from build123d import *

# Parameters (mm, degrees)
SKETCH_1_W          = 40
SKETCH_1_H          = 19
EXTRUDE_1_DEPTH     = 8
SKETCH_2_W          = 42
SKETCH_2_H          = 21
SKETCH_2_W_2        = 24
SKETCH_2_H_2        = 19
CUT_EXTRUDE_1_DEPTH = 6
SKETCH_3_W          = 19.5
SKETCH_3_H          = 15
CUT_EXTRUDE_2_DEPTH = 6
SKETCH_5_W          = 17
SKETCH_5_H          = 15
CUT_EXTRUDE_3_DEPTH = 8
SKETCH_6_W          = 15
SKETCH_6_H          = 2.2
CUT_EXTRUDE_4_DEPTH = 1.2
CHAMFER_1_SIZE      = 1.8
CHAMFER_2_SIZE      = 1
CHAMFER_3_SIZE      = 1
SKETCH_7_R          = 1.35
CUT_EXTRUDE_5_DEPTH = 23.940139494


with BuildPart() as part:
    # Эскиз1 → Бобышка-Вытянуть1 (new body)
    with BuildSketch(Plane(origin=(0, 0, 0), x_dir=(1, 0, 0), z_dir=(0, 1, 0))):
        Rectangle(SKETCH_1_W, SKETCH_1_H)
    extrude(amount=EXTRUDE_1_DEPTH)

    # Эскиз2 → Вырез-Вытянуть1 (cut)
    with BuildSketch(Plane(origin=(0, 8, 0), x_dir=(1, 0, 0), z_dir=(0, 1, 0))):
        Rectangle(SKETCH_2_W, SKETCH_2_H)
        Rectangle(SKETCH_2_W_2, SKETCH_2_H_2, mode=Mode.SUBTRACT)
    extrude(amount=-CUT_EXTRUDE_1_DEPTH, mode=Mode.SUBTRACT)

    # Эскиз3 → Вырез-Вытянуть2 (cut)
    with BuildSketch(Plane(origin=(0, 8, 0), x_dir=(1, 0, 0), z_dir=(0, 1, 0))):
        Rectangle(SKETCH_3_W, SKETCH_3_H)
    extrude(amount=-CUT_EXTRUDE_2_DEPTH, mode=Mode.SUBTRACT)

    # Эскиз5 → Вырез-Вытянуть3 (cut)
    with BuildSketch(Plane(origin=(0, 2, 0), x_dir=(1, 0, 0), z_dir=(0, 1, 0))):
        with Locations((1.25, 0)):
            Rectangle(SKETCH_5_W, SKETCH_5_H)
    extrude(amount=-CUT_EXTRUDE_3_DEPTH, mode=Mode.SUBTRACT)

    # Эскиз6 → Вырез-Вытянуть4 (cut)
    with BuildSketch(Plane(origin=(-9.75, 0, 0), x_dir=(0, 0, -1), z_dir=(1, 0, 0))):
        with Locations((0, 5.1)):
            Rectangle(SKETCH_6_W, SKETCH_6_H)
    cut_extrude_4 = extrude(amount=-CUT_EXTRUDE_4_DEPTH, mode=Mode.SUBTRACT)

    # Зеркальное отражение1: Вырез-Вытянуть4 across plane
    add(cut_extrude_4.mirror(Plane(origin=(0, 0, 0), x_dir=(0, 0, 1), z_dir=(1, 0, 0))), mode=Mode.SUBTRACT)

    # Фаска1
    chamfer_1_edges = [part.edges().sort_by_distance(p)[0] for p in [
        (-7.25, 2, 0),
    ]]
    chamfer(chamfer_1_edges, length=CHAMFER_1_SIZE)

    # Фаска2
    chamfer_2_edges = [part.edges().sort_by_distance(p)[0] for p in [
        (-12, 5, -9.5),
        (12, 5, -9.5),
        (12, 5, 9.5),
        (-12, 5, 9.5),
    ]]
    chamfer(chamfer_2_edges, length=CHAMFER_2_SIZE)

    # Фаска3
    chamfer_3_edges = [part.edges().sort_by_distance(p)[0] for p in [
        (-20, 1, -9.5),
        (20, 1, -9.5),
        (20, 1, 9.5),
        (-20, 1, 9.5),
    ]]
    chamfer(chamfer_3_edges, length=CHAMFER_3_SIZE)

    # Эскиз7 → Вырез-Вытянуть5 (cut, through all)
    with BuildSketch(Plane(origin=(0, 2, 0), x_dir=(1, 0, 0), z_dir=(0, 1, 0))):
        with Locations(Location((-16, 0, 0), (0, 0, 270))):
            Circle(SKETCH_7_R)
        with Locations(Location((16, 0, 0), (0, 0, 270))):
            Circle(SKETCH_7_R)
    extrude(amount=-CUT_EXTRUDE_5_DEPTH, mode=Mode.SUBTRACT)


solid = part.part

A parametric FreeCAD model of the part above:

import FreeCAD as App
import Part
import Sketcher
Q = App.Units.Quantity


def edges_at(feature, points):
    """Names of the edges that pass closest to the given points."""
    edges = feature.Shape.Edges
    near = lambda p: min(range(len(edges)), key=lambda i: edges[i].distToShape(Part.Vertex(*p))[0])
    return sorted({f"Edge{near(p) + 1}" for p in points})


def add_polygon(sketch, points):
    """Adds a closed chain of lines whose ends are joined by coincident constraints."""
    first, n = sketch.GeometryCount, len(points)
    for a, b in zip(points, points[1:] + points[:1]):
        sketch.addGeometry(Part.LineSegment(App.Vector(*a, 0), App.Vector(*b, 0)), False)
    for i in range(n):
        sketch.addConstraint(Sketcher.Constraint("Coincident", first + i, 2, first + (i + 1) % n, 1))

doc = App.newDocument("Part")
body = doc.addObject("PartDesign::Body", "Body")

# Sketch on XZ plane
sketch1 = body.newObject("Sketcher::SketchObject", "Sketch")
sketch1.AttachmentSupport = (doc.getObject("XZ_Plane"), [""])
sketch1.MapMode = "FlatFace"
add_polygon(sketch1, [(-20, -10), (-20, 10), (20, 10), (20, -10)])  # lines 0-3
sketch1.addConstraint([
    Sketcher.Constraint("Vertical", 0),
    Sketcher.Constraint("Horizontal", 1),
    Sketcher.Constraint("Vertical", 2),
    Sketcher.Constraint("Horizontal", 3),
    Sketcher.Constraint("Symmetric", 0, 2, 2, 2, -1, 1),
    Sketcher.Constraint("DistanceX", 1, 1, 1, 2, Q("40 mm")),
    Sketcher.Constraint("DistanceY", 0, 1, 0, 2, Q("19 mm")),
])
pad1 = body.newObject("PartDesign::Pad", "Pad")
pad1.Profile = sketch1
pad1.Length = 8
pad1.Reversed = True

# Sketch on XZ plane
sketch2 = body.newObject("Sketcher::SketchObject", "Sketch001")
sketch2.AttachmentSupport = (doc.getObject("XZ_Plane"), [""])
sketch2.MapMode = "FlatFace"
sketch2.AttachmentOffset = App.Placement(App.Vector(0, 0, -8), App.Rotation())
add_polygon(sketch2, [(-21, -10), (-21, 10), (21, 10), (21, -10)])  # lines 0-3
add_polygon(sketch2, [(12, 10), (-12, 10), (-12, -10), (12, -10)])  # lines 4-7
sketch2.addConstraint([
    Sketcher.Constraint("Vertical", 0),
    Sketcher.Constraint("Horizontal", 1),
    Sketcher.Constraint("Vertical", 2),
    Sketcher.Constraint("Horizontal", 3),
    Sketcher.Constraint("Horizontal", 4),
    Sketcher.Constraint("Vertical", 5),
    Sketcher.Constraint("Horizontal", 6),
    Sketcher.Constraint("Vertical", 7),
    Sketcher.Constraint("Symmetric", 0, 2, 2, 2, -1, 1),
    Sketcher.Constraint("Symmetric", 4, 2, 6, 2, -1, 1),
    Sketcher.Constraint("DistanceX", 1, 1, 1, 2, Q("42 mm")),
    Sketcher.Constraint("DistanceX", 4, 2, 4, 1, Q("24 mm")),
    Sketcher.Constraint("DistanceY", 0, 1, 0, 2, Q("21 mm")),
    Sketcher.Constraint("DistanceY", 5, 2, 5, 1, Q("19 mm")),
])
pocket1 = body.newObject("PartDesign::Pocket", "Pocket")
pocket1.Profile = sketch2
pocket1.Length = 6
pocket1.Reversed = True

# Sketch on XZ plane
sketch3 = body.newObject("Sketcher::SketchObject", "Sketch002")
sketch3.AttachmentSupport = (doc.getObject("XZ_Plane"), [""])
sketch3.MapMode = "FlatFace"
sketch3.AttachmentOffset = App.Placement(App.Vector(0, 0, -8), App.Rotation())
add_polygon(sketch3, [(-10, -8), (-10, 8), (10, 8), (10, -8)])  # lines 0-3
sketch3.addConstraint([
    Sketcher.Constraint("Vertical", 0),
    Sketcher.Constraint("Horizontal", 1),
    Sketcher.Constraint("Vertical", 2),
    Sketcher.Constraint("Horizontal", 3),
    Sketcher.Constraint("Symmetric", 0, 2, 2, 2, -1, 1),
    Sketcher.Constraint("DistanceY", 0, 1, 0, 2, Q("15 mm")),
    Sketcher.Constraint("DistanceX", 1, 1, 1, 2, Q("19.5 mm")),
])
pocket2 = body.newObject("PartDesign::Pocket", "Pocket001")
pocket2.Profile = sketch3
pocket2.Length = 6
pocket2.Reversed = True

# Sketch on XZ plane
sketch4 = body.newObject("Sketcher::SketchObject", "Sketch003")
sketch4.AttachmentSupport = (doc.getObject("XZ_Plane"), [""])
sketch4.MapMode = "FlatFace"
sketch4.AttachmentOffset = App.Placement(App.Vector(0, 0, -2), App.Rotation())
add_polygon(sketch4, [(-7, -8), (-7, 8), (10, 8), (10, -8)])  # lines 0-3
sketch4.addConstraint([
    Sketcher.Constraint("Vertical", 0),
    Sketcher.Constraint("Horizontal", 1),
    Sketcher.Constraint("Vertical", 2),
    Sketcher.Constraint("Horizontal", 3),
    Sketcher.Constraint("DistanceX", 1, 1, 1, 2, Q("17 mm")),
    Sketcher.Constraint("DistanceY", 0, 1, 0, 2, Q("15 mm")),
    Sketcher.Constraint("DistanceY", -1, 1, 0, 2, Q("7.5 mm")),
    Sketcher.Constraint("DistanceX", 0, 2, -1, 1, Q("7.25 mm")),
])
pocket3 = body.newObject("PartDesign::Pocket", "Pocket002")
pocket3.Profile = sketch4
pocket3.Length = 8
pocket3.Reversed = True

# Sketch on YZ plane
sketch5 = body.newObject("Sketcher::SketchObject", "Sketch004")
sketch5.AttachmentSupport = (doc.getObject("YZ_Plane"), [""])
sketch5.MapMode = "FlatFace"
sketch5.AttachmentOffset = App.Placement(App.Vector(0, 0, -9.75), App.Rotation())
add_polygon(sketch5, [(6.2, 7.5), (4, 7.5), (4, -7.5), (6.2, -7.5)])  # lines 0-3
sketch5.addConstraint([
    Sketcher.Constraint("Horizontal", 0),
    Sketcher.Constraint("Vertical", 1),
    Sketcher.Constraint("Horizontal", 2),
    Sketcher.Constraint("Vertical", 3),
    Sketcher.Constraint("DistanceY", 1, 2, 1, 1, Q("15 mm")),
    Sketcher.Constraint("DistanceX", 0, 2, 0, 1, Q("2.2 mm")),
    Sketcher.Constraint("DistanceX", -1, 1, 0, 2, Q("4 mm")),
    Sketcher.Constraint("DistanceY", -1, 1, 0, 2, Q("7.5 mm")),
])
pocket4 = body.newObject("PartDesign::Pocket", "Pocket003")
pocket4.Profile = sketch5
pocket4.Length = 1.2
doc.recompute()

mirrored = body.newObject("PartDesign::Mirrored", "Mirrored")
mirrored.Originals = [pocket4]
mirrored.MirrorPlane = (doc.getObject("YZ_Plane"), [""])
body.Tip = mirrored
doc.recompute()

chamfer = body.newObject("PartDesign::Chamfer", "Chamfer")
chamfer.Base = (mirrored, edges_at(mirrored, [(-7.25, 2, 0)]))
chamfer.Size = 1.8
doc.recompute()

chamfer2 = body.newObject("PartDesign::Chamfer", "Chamfer001")
chamfer2.Base = (chamfer, edges_at(chamfer, [
    (-12, 5, -9.5),
    (12, 5, -9.5),
    (12, 5, 9.5),
    (-12, 5, 9.5),
]))
chamfer2.Size = 1
doc.recompute()

chamfer3 = body.newObject("PartDesign::Chamfer", "Chamfer002")
chamfer3.Base = (chamfer2, edges_at(chamfer2, [
    (-20, 1, -9.5),
    (20, 1, -9.5),
    (20, 1, 9.5),
    (-20, 1, 9.5),
]))
chamfer3.Size = 1

# Sketch on XZ plane
sketch6 = body.newObject("Sketcher::SketchObject", "Sketch005")
sketch6.AttachmentSupport = (doc.getObject("XZ_Plane"), [""])
sketch6.MapMode = "FlatFace"
sketch6.AttachmentOffset = App.Placement(App.Vector(0, 0, -2), App.Rotation())
sketch6.addGeometry([
    Part.Circle(App.Vector(-16, 0, 0), App.Vector(0, 0, 1), 1.4),
    Part.Circle(App.Vector(16, 0, 0), App.Vector(0, 0, 1), 1.4),
], False)
sketch6.addConstraint([
    Sketcher.Constraint("Equal", 0, 1),
    Sketcher.Constraint("Symmetric", 0, 3, 1, 3, -1, 1),
    Sketcher.Constraint("PointOnObject", 0, 3, -1),
    Sketcher.Constraint("Diameter", 0, Q("2.7 mm")),
    Sketcher.Constraint("DistanceX", 0, 3, -1, 1, Q("16 mm")),
])
pocket5 = body.newObject("PartDesign::Pocket", "Pocket004")
pocket5.Profile = sketch6
pocket5.Type = "ThroughAll"
pocket5.Reversed = True

doc.recompute()
